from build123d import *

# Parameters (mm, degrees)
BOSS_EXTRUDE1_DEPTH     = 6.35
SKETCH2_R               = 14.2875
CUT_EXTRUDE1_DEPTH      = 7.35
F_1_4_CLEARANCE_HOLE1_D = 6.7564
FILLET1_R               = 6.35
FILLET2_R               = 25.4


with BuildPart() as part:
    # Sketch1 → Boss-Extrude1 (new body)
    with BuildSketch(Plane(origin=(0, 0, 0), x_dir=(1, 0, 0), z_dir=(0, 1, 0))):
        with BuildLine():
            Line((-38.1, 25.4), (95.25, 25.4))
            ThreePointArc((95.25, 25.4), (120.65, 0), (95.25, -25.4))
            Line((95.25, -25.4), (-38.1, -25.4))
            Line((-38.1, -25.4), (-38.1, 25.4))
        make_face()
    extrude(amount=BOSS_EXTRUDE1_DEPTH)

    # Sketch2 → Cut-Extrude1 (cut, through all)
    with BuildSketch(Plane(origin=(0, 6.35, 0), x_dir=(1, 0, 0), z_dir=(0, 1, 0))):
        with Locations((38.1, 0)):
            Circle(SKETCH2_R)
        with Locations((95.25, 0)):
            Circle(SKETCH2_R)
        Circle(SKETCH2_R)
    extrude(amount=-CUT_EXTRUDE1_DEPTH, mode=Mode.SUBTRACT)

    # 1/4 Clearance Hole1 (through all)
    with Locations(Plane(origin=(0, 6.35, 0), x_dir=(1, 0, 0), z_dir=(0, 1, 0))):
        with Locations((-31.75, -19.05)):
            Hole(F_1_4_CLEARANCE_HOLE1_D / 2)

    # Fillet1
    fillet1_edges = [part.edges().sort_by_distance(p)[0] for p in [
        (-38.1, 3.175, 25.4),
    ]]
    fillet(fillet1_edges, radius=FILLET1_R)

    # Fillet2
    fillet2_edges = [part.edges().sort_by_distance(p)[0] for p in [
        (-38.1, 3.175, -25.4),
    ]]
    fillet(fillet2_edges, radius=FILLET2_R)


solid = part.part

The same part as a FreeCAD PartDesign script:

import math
import FreeCAD as App
import Part
import Sketcher
from FreeCAD import Vector
Q = App.Units.Quantity


def edges_at(feature, points):
    """Names of the edges that pass closest to the given points."""
    edges = feature.Shape.Edges
    near = lambda p: min(range(len(edges)), key=lambda i: edges[i].distToShape(Part.Vertex(*p))[0])
    return sorted({f"Edge{near(p) + 1}" for p in points})

doc = App.newDocument("Part")
body = doc.addObject("PartDesign::Body", "Body")

# Sketch on XZ plane
sketch1 = body.newObject("Sketcher::SketchObject", "Sketch")
sketch1.AttachmentSupport = (doc.getObject("XZ_Plane"), [""])
sketch1.MapMode = "FlatFace"
sketch1.addGeometry([
    Part.LineSegment(Vector(95, -25, 0), Vector(-38, -25, 0)),
    Part.LineSegment(Vector(-38, -25, 0), Vector(-38, 25, 0)),
    Part.LineSegment(Vector(-38, 25, 0), Vector(95, 25, 0)),
    Part.ArcOfCircle(Part.Circle(Vector(95, 0, 0), Vector(0, 0, 1), 25), math.radians(-90), math.radians(90)),
], False)
sketch1.addConstraint([
    Sketcher.Constraint("Coincident", 0, 2, 1, 1),
    Sketcher.Constraint("Coincident", 1, 2, 2, 1),
    Sketcher.Constraint("Tangent", 2, 2, 3, 2),
    Sketcher.Constraint("Tangent", 3, 1, 0, 1),
    Sketcher.Constraint("Horizontal", 0),
    Sketcher.Constraint("Vertical", 1),
    Sketcher.Constraint("Horizontal", 2),
    Sketcher.Constraint("PointOnObject", 3, 3, -1),
    Sketcher.Constraint("Radius", 3, Q("1 in")),
    Sketcher.Constraint("DistanceX", 0, 2, 0, 1, Q("5.25 in")),
    Sketcher.Constraint("DistanceX", 0, 2, -1, 1, Q("1.5 in")),
])
pad1 = body.newObject("PartDesign::Pad", "Pad")
pad1.Profile = sketch1
pad1.Length = Q("0.25 in")
pad1.Reversed = True

# Sketch on XZ plane
sketch2 = body.newObject("Sketcher::SketchObject", "Sketch001")
sketch2.AttachmentSupport = (doc.getObject("XZ_Plane"), [""])
sketch2.MapMode = "FlatFace"
sketch2.AttachmentOffset = App.Placement(Vector(0, 0, -0.25 * 25.4), App.Rotation())
sketch2.addGeometry([
    Part.Circle(Vector(38, 0, 0), Vector(0, 0, 1), 14),
    Part.Circle(Vector(95, 0, 0), Vector(0, 0, 1), 14),
    Part.Circle(Vector(0, 0, 0), Vector(0, 0, 1), 14),
], False)
sketch2.addConstraint([
    Sketcher.Constraint("Coincident", 2, 3, -1, 1),
    Sketcher.Constraint("Equal", 0, 1),
    Sketcher.Constraint("Equal", 1, 2),
    Sketcher.Constraint("PointOnObject", 0, 3, -1),
    Sketcher.Constraint("PointOnObject", 1, 3, -1),
    Sketcher.Constraint("Diameter", 0, Q("1.125 in")),
    Sketcher.Constraint("DistanceX", -1, 1, 0, 3, Q("1.5 in")),
    Sketcher.Constraint("DistanceX", -1, 1, 1, 3, Q("3.75 in")),
])
pocket1 = body.newObject("PartDesign::Pocket", "Pocket")
pocket1.Profile = sketch2
pocket1.Type = "ThroughAll"
pocket1.Reversed = True

# Sketch on XZ plane
sketch3 = body.newObject("Sketcher::SketchObject", "Sketch002")
sketch3.AttachmentSupport = (doc.getObject("XZ_Plane"), [""])
sketch3.MapMode = "FlatFace"
sketch3.AttachmentOffset = App.Placement(Vector(0, 0, -0.25 * 25.4), App.Rotation())
sketch3.addGeometry(Part.Circle(Vector(-31.8, 19.1, 0), Vector(0, 0, 1), 3.4), False)
sketch3.addConstraint([
    Sketcher.Constraint("Diameter", 0, Q("0.266 in")),
    Sketcher.Constraint("DistanceX", 0, 3, -1, 1, Q("1.25 in")),
    Sketcher.Constraint("DistanceY", -1, 1, 0, 3, Q("0.75 in")),
])
doc.recompute()
hole = body.newObject("PartDesign::Hole", "Hole")
hole.Profile = sketch3
hole.ThreadType = "None"
hole.Diameter = Q("0.266 in")
hole.DepthType = "ThroughAll"
hole.Reversed = True
doc.recompute()

fillet = body.newObject("PartDesign::Fillet", "Fillet")
fillet.Base = (hole, edges_at(hole, [(-38.1, 3.175, 25.4)]))
fillet.Radius = Q("0.25 in")
doc.recompute()

fillet2 = body.newObject("PartDesign::Fillet", "Fillet001")
fillet2.Base = (fillet, edges_at(fillet, [(-38.1, 3.175, -25.4)]))
fillet2.Radius = Q("1 in")

doc.recompute()
